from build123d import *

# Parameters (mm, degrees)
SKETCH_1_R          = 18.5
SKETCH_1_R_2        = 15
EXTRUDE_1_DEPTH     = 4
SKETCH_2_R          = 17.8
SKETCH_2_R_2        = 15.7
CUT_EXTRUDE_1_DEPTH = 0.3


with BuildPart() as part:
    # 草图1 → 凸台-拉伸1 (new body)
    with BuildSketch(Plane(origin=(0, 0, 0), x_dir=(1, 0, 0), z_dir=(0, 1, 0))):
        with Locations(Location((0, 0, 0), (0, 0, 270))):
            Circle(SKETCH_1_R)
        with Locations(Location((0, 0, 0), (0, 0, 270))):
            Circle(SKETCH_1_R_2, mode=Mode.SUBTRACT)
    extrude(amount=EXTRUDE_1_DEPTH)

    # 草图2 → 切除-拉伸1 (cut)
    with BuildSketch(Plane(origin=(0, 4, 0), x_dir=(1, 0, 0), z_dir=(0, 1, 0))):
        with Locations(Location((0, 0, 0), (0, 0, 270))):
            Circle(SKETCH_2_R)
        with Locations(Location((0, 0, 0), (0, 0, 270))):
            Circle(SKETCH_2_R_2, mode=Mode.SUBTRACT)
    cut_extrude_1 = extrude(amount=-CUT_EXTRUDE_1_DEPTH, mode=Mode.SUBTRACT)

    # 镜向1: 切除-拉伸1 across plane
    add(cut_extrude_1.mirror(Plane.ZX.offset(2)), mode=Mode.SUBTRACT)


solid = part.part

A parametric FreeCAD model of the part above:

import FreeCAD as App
import Part
import Sketcher

V = App.Vector

doc = App.newDocument("Part")
body = doc.addObject("PartDesign::Body", "Body")

sketch1 = body.newObject("Sketcher::SketchObject", "Sketch")
sketch1.AttachmentSupport = (doc.getObject("XZ_Plane"), [""])
sketch1.MapMode = "FlatFace"
sketch1.addGeometry([
    Part.Circle(V(0, 0, 0), V(0, 0, 1), 18.5),
    Part.Circle(V(0, 0, 0), V(0, 0, 1), 15),
], False)
sketch1.addConstraint([
    Sketcher.Constraint("Coincident", 0, 3, -1, 1),
    Sketcher.Constraint("Coincident", 1, 3, -1, 1),
    Sketcher.Constraint("Diameter", 0, 37.0),
    Sketcher.Constraint("Diameter", 1, 30.0),
])
pad1 = body.newObject("PartDesign::Pad", "Pad")
pad1.Profile = sketch1
pad1.Length = 4
pad1.Reversed = True

sketch2 = body.newObject("Sketcher::SketchObject", "Sketch001")
sketch2.AttachmentSupport = (doc.getObject("XZ_Plane"), [""])
sketch2.MapMode = "FlatFace"
sketch2.AttachmentOffset = App.Placement(V(0, 0, -4), App.Rotation())
sketch2.addGeometry([
    Part.Circle(V(0, 0, 0), V(0, 0, 1), 17.8),
    Part.Circle(V(0, 0, 0), V(0, 0, 1), 15.7),
], False)
sketch2.addConstraint([
    Sketcher.Constraint("Coincident", 0, 3, -1, 1),
    Sketcher.Constraint("Coincident", 1, 3, -1, 1),
    Sketcher.Constraint("Diameter", 0, 35.6),
    Sketcher.Constraint("Diameter", 1, 31.4),
])
pocket1 = body.newObject("PartDesign::Pocket", "Pocket")
pocket1.Profile = sketch2
pocket1.Length = 0.3
pocket1.Reversed = True
doc.recompute()

datumplane = body.newObject("PartDesign::Plane", "DatumPlane")
datumplane.AttachmentSupport = (doc.getObject("XZ_Plane"), [""])
datumplane.MapMode = "FlatFace"
datumplane.AttachmentOffset = App.Placement(V(0, 0, -2), App.Rotation())
mirrored = body.newObject("PartDesign::Mirrored", "Mirrored")
mirrored.Originals = [pocket1]
mirrored.MirrorPlane = (datumplane, [""])
body.Tip = mirrored

doc.recompute()
